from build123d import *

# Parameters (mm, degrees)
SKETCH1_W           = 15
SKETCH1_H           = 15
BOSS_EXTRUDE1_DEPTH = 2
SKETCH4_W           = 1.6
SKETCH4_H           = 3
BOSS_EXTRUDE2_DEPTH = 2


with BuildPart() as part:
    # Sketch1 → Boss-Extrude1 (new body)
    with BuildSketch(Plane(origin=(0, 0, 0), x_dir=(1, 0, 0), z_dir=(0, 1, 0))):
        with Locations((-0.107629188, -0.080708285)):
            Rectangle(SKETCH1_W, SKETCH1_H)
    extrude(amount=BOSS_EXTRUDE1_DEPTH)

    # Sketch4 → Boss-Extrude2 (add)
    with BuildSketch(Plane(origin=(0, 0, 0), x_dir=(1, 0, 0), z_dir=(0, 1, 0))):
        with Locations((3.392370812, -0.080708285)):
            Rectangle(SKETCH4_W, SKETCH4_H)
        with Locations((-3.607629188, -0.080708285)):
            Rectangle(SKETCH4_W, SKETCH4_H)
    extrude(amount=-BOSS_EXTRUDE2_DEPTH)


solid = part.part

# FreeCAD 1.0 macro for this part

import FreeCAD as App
import Part
import Sketcher
from FreeCAD import Vector
Q = App.Units.Quantity

doc = App.newDocument("Part")
body = doc.addObject("PartDesign::Body", "Body")

# Sketch on XZ plane
sketch1 = body.newObject("Sketcher::SketchObject", "Sketch")
sketch1.AttachmentSupport = (doc.getObject("XZ_Plane"), [""])
sketch1.MapMode = "FlatFace"
sketch1.addGeometry([
    Part.LineSegment(Vector(-8, -7, 0), Vector(-8, 8, 0)),
    Part.LineSegment(Vector(-8, 8, 0), Vector(7, 8, 0)),
    Part.LineSegment(Vector(7, 8, 0), Vector(7, -7, 0)),
    Part.LineSegment(Vector(7, -7, 0), Vector(-8, -7, 0)),
], False)
sketch1.addConstraint([
    Sketcher.Constraint("Coincident", 0, 2, 1, 1),
    Sketcher.Constraint("Coincident", 1, 2, 2, 1),
    Sketcher.Constraint("Coincident", 2, 2, 3, 1),
    Sketcher.Constraint("Coincident", 3, 2, 0, 1),
    Sketcher.Constraint("Vertical", 0),
    Sketcher.Constraint("Horizontal", 1),
    Sketcher.Constraint("Vertical", 2),
    Sketcher.Constraint("Horizontal", 3),
    Sketcher.Constraint("Equal", 3, 0),
    Sketcher.Constraint("DistanceX", 1, 1, 1, 2, Q("15 mm")),
    Sketcher.Constraint("DistanceX", 0, 2, -1, 1, Q("7.607629 mm")),
    Sketcher.Constraint("DistanceY", -1, 1, 0, 2, Q("7.580708 mm")),
])
pad1 = body.newObject("PartDesign::Pad", "Pad")
pad1.Profile = sketch1
pad1.Length = 2
pad1.Reversed = True

# Sketch on XZ plane
sketch2 = body.newObject("Sketcher::SketchObject", "Sketch001")
sketch2.AttachmentSupport = (doc.getObject("XZ_Plane"), [""])
sketch2.MapMode = "FlatFace"
sketch2.addGeometry([
    Part.LineSegment(Vector(2.6, -1.4, 0), Vector(2.6, 1.6, 0)),  # 0
    Part.LineSegment(Vector(2.6, 1.6, 0), Vector(4.2, 1.6, 0)),  # 1
    Part.LineSegment(Vector(4.2, 1.6, 0), Vector(4.2, -1.4, 0)),  # 2
    Part.LineSegment(Vector(4.2, -1.4, 0), Vector(2.6, -1.4, 0)),  # 3
    Part.LineSegment(Vector(-4.4, -1.4, 0), Vector(-4.4, 1.6, 0)),  # 4
    Part.LineSegment(Vector(-4.4, 1.6, 0), Vector(-2.8, 1.6, 0)),  # 5
    Part.LineSegment(Vector(-2.8, 1.6, 0), Vector(-2.8, -1.4, 0)),  # 6
    Part.LineSegment(Vector(-2.8, -1.4, 0), Vector(-4.4, -1.4, 0)),  # 7
], False)
sketch2.addConstraint([
    Sketcher.Constraint("Coincident", 0, 2, 1, 1),
    Sketcher.Constraint("Coincident", 1, 2, 2, 1),
    Sketcher.Constraint("Coincident", 2, 2, 3, 1),
    Sketcher.Constraint("Coincident", 3, 2, 0, 1),
    Sketcher.Constraint("Coincident", 4, 2, 5, 1),
    Sketcher.Constraint("Coincident", 5, 2, 6, 1),
    Sketcher.Constraint("Coincident", 6, 2, 7, 1),
    Sketcher.Constraint("Coincident", 7, 2, 4, 1),
    Sketcher.Constraint("Vertical", 0),
    Sketcher.Constraint("Horizontal", 1),
    Sketcher.Constraint("Vertical", 2),
    Sketcher.Constraint("Horizontal", 3),
    Sketcher.Constraint("Vertical", 4),
    Sketcher.Constraint("Horizontal", 5),
    Sketcher.Constraint("Vertical", 6),
    Sketcher.Constraint("Horizontal", 7),
    Sketcher.Constraint("Horizontal", 1, 2, 4, 2),
    Sketcher.Constraint("Horizontal", 3, 2, 6, 2),
    Sketcher.Constraint("Equal", 3, 5),
    Sketcher.Constraint("DistanceY", 0, 1, 0, 2, Q("3 mm")),
    Sketcher.Constraint("DistanceX", 1, 1, 1, 2, Q("1.6 mm")),
    Sketcher.Constraint("DistanceX", 4, 2, 0, 2, Q("7 mm")),
    Sketcher.Constraint("DistanceX", -1, 1, 0, 2, Q("2.592371 mm")),
    Sketcher.Constraint("DistanceY", -1, 1, 0, 2, Q("1.580708 mm")),
])
pad2 = body.newObject("PartDesign::Pad", "Pad001")
pad2.Profile = sketch2
pad2.Length = 2

doc.recompute()
